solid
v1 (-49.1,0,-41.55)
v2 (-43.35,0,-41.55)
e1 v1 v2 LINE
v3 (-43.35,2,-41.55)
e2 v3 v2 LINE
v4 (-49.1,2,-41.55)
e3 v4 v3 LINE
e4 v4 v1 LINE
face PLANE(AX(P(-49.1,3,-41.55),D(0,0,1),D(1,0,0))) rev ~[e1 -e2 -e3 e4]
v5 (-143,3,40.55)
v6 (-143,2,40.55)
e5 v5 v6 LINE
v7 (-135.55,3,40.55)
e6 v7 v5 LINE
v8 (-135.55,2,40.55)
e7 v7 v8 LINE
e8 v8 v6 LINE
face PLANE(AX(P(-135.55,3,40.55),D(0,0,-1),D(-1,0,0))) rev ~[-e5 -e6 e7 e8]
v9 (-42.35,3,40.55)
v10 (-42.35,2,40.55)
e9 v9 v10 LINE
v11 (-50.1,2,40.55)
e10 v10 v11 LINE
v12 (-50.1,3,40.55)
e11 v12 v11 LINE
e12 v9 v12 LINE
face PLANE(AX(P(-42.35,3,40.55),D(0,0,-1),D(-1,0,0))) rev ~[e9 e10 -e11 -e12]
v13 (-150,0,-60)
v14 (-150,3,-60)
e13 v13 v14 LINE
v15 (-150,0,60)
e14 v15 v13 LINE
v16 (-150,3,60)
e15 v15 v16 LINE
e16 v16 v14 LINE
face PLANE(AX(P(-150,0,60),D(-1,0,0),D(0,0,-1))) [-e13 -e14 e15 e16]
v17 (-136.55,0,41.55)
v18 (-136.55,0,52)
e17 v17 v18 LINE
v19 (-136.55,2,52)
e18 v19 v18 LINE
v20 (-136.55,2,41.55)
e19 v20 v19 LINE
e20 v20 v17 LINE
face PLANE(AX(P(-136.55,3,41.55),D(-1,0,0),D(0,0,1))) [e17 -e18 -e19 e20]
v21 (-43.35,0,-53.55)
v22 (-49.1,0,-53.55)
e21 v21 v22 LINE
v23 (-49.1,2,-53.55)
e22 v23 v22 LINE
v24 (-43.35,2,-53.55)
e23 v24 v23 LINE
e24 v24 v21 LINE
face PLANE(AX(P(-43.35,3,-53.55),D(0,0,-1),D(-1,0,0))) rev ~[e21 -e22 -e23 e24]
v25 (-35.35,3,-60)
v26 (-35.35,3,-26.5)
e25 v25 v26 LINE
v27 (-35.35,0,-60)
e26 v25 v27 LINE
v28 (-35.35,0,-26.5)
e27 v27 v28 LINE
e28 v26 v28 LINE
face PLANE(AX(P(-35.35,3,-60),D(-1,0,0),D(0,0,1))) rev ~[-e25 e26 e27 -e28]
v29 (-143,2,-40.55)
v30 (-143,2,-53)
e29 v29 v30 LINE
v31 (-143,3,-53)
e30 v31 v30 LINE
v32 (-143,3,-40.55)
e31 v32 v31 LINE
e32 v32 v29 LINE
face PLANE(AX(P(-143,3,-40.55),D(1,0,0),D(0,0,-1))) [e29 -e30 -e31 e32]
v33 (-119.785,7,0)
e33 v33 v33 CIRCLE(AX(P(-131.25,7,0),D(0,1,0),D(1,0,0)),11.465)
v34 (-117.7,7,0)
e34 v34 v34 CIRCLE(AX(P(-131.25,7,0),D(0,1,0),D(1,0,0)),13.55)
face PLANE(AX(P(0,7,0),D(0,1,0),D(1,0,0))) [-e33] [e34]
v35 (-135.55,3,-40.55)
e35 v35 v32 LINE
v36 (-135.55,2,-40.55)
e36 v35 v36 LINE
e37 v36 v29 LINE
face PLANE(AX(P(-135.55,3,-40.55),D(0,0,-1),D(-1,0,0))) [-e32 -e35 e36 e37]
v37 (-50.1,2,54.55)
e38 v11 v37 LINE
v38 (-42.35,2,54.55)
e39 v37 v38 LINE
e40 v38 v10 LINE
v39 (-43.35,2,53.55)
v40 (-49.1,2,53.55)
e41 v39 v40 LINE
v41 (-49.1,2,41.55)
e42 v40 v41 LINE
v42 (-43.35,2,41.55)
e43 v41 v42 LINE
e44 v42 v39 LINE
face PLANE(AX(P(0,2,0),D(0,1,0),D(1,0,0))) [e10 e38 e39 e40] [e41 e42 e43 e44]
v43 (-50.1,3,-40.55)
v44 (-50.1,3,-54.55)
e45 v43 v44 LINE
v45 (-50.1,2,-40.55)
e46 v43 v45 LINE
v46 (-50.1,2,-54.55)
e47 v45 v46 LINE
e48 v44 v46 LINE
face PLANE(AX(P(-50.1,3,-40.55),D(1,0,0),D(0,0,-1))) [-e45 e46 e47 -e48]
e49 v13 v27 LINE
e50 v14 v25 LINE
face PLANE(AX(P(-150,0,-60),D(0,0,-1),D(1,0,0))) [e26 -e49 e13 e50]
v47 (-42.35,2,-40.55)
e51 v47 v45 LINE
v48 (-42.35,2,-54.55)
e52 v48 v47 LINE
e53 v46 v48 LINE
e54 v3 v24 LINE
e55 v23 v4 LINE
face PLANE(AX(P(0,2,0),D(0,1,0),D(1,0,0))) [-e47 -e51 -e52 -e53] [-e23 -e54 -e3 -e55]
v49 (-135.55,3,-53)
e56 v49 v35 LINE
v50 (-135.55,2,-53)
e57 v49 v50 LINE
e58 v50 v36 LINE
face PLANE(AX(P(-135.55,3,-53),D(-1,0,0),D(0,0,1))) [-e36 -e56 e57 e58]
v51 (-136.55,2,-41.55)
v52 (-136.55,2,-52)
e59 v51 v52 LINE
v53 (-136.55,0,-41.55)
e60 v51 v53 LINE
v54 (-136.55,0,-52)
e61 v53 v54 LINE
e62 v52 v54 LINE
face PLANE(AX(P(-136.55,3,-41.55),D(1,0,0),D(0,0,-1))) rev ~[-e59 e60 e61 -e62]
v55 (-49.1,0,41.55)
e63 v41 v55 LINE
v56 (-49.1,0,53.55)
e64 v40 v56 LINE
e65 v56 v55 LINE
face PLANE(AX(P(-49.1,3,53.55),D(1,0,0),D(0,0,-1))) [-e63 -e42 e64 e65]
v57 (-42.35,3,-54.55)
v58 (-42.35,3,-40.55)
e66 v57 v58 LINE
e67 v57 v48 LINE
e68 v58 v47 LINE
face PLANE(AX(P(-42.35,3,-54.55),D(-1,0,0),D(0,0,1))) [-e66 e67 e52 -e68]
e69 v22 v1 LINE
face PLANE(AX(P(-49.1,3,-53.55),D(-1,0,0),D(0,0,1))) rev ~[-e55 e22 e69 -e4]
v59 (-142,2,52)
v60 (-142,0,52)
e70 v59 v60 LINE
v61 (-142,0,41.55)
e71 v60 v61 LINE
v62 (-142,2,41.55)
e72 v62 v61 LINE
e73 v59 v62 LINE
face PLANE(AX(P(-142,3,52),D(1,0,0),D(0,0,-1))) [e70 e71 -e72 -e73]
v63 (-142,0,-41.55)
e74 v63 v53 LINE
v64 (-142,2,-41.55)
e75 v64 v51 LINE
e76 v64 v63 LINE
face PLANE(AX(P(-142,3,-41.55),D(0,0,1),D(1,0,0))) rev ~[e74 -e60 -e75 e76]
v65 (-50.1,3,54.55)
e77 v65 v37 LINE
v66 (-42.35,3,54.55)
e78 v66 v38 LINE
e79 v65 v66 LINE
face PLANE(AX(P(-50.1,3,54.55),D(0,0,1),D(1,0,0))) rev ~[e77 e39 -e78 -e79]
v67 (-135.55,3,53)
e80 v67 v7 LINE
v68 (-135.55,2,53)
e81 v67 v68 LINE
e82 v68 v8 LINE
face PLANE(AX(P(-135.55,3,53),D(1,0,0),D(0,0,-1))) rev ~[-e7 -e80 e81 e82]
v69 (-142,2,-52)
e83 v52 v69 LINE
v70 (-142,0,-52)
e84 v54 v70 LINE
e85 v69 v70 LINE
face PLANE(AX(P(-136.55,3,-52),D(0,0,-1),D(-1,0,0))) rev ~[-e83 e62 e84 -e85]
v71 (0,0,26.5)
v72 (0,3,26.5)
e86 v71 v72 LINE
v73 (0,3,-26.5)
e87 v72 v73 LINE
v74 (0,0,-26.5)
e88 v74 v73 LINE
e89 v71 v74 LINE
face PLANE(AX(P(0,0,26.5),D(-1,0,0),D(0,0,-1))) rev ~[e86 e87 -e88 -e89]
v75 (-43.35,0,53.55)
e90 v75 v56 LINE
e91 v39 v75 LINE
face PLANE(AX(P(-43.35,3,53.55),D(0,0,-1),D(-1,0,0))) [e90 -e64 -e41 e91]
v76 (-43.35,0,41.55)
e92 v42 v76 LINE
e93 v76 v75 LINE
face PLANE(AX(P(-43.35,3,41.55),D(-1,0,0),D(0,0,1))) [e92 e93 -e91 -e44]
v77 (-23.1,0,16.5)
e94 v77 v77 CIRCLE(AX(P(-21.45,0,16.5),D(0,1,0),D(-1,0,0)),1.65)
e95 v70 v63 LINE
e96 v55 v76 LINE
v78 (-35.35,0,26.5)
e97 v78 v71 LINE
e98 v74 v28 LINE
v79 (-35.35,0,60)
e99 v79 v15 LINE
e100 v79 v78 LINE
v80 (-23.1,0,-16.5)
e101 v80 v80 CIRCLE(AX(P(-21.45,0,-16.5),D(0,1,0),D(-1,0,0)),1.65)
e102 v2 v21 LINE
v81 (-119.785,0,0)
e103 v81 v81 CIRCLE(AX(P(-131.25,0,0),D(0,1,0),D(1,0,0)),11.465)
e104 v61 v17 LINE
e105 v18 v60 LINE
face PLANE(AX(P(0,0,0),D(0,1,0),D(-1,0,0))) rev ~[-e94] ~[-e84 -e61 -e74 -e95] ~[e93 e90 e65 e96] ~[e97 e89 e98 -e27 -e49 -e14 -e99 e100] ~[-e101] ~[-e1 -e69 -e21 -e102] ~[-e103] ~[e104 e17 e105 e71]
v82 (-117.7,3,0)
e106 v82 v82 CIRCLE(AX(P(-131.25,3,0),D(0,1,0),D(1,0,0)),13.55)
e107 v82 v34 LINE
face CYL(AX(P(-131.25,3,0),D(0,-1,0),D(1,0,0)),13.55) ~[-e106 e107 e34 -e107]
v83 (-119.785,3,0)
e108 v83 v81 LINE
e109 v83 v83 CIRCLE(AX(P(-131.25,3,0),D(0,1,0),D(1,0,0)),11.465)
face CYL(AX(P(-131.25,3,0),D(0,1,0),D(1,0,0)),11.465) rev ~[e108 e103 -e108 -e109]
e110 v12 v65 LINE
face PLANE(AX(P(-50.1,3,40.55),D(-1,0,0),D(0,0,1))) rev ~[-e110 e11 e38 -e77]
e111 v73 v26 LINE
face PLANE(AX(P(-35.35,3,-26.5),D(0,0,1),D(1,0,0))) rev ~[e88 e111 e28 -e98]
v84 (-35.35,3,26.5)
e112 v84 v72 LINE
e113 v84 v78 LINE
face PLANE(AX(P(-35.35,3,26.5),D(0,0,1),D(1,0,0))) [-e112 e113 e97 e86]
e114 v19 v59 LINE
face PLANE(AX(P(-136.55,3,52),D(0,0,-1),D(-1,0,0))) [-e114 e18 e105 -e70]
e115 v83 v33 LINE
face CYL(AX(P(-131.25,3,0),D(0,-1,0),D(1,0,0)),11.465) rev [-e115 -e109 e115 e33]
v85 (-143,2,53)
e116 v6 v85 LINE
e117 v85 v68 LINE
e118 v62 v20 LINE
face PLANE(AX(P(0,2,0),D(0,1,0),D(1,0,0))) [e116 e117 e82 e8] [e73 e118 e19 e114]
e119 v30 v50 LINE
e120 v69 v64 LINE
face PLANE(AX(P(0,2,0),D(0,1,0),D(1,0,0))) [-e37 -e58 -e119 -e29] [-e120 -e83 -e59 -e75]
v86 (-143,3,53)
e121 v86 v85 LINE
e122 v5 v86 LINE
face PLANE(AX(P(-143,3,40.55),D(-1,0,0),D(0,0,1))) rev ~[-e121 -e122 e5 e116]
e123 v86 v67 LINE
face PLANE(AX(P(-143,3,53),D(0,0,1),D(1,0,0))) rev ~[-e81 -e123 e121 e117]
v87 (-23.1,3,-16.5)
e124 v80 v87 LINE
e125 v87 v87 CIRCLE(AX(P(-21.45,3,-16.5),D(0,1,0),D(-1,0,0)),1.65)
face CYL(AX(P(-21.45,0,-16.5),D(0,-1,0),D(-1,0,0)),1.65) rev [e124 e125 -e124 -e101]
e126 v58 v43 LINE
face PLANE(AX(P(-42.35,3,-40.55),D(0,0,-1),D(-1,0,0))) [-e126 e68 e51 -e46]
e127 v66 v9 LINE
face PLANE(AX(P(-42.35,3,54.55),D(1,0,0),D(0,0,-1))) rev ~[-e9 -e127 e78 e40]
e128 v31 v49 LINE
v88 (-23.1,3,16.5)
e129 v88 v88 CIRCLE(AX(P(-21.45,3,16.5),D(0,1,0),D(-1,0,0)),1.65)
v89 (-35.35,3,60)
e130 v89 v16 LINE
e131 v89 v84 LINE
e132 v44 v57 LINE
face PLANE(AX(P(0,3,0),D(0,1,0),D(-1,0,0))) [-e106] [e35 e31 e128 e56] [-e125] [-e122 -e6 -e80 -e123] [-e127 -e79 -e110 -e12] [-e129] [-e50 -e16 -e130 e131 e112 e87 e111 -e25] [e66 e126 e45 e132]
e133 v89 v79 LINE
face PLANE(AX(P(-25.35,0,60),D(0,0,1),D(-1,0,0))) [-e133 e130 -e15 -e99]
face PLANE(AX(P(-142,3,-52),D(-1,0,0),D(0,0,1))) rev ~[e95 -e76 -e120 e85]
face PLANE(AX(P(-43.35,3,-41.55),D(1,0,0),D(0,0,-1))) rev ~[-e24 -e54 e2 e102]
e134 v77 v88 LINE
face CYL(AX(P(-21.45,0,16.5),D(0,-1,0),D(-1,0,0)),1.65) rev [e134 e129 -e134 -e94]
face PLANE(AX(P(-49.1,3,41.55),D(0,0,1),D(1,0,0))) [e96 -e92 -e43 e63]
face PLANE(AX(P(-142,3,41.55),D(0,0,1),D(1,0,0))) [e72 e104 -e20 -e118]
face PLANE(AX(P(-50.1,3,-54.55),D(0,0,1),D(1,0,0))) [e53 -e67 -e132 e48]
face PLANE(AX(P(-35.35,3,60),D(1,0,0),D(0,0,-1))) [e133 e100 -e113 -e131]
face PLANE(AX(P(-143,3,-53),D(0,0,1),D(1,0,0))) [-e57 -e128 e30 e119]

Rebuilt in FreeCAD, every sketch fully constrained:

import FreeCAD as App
import Part
import Sketcher
from FreeCAD import Vector
Q = App.Units.Quantity

doc = App.newDocument("Part")
body = doc.addObject("PartDesign::Body", "Body")

sketch1 = doc.addObject("Sketcher::SketchObject", "Sketch")
body.addObject(sketch1)
sketch1.AttachmentSupport = (doc.XZ_Plane, [""])
sketch1.MapMode = "FlatFace"
sketch1.addGeometry(Part.LineSegment(Vector(-25.4, 60, 0), Vector(-25.4, 26.5, 0)), False)
sketch1.addGeometry(Part.LineSegment(Vector(-25.4, 26.5, 0), Vector(0, 26.5, 0)), False)
sketch1.addGeometry(Part.LineSegment(Vector(0, 26.5, 0), Vector(0, -26.5, 0)), False)
sketch1.addGeometry(Part.LineSegment(Vector(0, -26.5, 0), Vector(-25.4, -26.5, 0)), False)
sketch1.addGeometry(Part.LineSegment(Vector(-25.4, -26.5, 0), Vector(-25.4, -60, 0)), False)
sketch1.addGeometry(Part.LineSegment(Vector(-25.4, -60, 0), Vector(-150, -60, 0)), False)
sketch1.addGeometry(Part.LineSegment(Vector(-150, -60, 0), Vector(-150, 60, 0)), False)
sketch1.addGeometry(Part.LineSegment(Vector(-150, 60, 0), Vector(-25.4, 60, 0)), False)
sketch1.addGeometry(Part.Circle(Vector(-21.4, -16.5, 0), Vector(0, 0, 1), 1.6), False)
sketch1.addGeometry(Part.Circle(Vector(-21.4, 16.5, 0), Vector(0, 0, 1), 1.6), False)
sketch1.addConstraint(Sketcher.Constraint("Coincident", 0, 2, 1, 1))
sketch1.addConstraint(Sketcher.Constraint("Coincident", 1, 2, 2, 1))
sketch1.addConstraint(Sketcher.Constraint("Coincident", 2, 2, 3, 1))
sketch1.addConstraint(Sketcher.Constraint("Coincident", 3, 2, 4, 1))
sketch1.addConstraint(Sketcher.Constraint("Coincident", 4, 2, 5, 1))
sketch1.addConstraint(Sketcher.Constraint("Coincident", 5, 2, 6, 1))
sketch1.addConstraint(Sketcher.Constraint("Coincident", 6, 2, 7, 1))
sketch1.addConstraint(Sketcher.Constraint("Coincident", 7, 2, 0, 1))
sketch1.addConstraint(Sketcher.Constraint("Vertical", 0))
sketch1.addConstraint(Sketcher.Constraint("Horizontal", 1))
sketch1.addConstraint(Sketcher.Constraint("Vertical", 2))
sketch1.addConstraint(Sketcher.Constraint("Horizontal", 3))
sketch1.addConstraint(Sketcher.Constraint("Vertical", 4))
sketch1.addConstraint(Sketcher.Constraint("Horizontal", 5))
sketch1.addConstraint(Sketcher.Constraint("Vertical", 6))
sketch1.addConstraint(Sketcher.Constraint("Horizontal", 7))
sketch1.addConstraint(Sketcher.Constraint("Equal", 8, 9))
sketch1.addConstraint(Sketcher.Constraint("Symmetric", 1, 2, 2, 2, -1, 1))
sketch1.addConstraint(Sketcher.Constraint("Symmetric", 8, 3, 9, 3, -1))
sketch1.addConstraint(Sketcher.Constraint("Symmetric", 4, 2, 7, 2, -1))
sketch1.addConstraint(Sketcher.Constraint("Diameter", 8, Q("3.3 mm")))
sketch1.addConstraint(Sketcher.Constraint("DistanceY", 2, 2, 2, 1, Q("53 mm")))
sketch1.addConstraint(Sketcher.Constraint("DistanceY", 6, 1, 6, 2, Q("120 mm")))
sketch1.addConstraint(Sketcher.Constraint("DistanceX", 1, 1, 1, 2, Q("25.35 mm")))
sketch1.addConstraint(Sketcher.Constraint("DistanceX", 5, 2, 5, 1, Q("124.65 mm")))
sketch1.addConstraint(Sketcher.Constraint("DistanceY", 8, 3, -1, 1, Q("16.5 mm")))
sketch1.addConstraint(Sketcher.Constraint("DistanceX", 0, 2, 9, 3, Q("3.9 mm")))
pad1 = doc.addObject("PartDesign::Pad", "Pad")
body.addObject(pad1)
pad1.Profile = sketch1
pad1.Length = 3
pad1.Reversed = True

sketch2 = doc.addObject("Sketcher::SketchObject", "Sketch001")
body.addObject(sketch2)
sketch2.AttachmentSupport = (doc.XZ_Plane, [""])
sketch2.MapMode = "FlatFace"
sketch2.AttachmentOffset = App.Placement(Vector(0, 0, -3), App.Rotation())
sketch2.addGeometry(Part.Circle(Vector(-131, 0, 0), Vector(0, 0, 1), 11), False)
sketch2.addConstraint(Sketcher.Constraint("PointOnObject", 0, 3, -1))
sketch2.addConstraint(Sketcher.Constraint("Diameter", 0, Q("22.93 mm")))
sketch2.addConstraint(Sketcher.Constraint("DistanceX", 0, 3, -1, 1, Q("131.25 mm")))
pocket1 = doc.addObject("PartDesign::Pocket", "Pocket")
body.addObject(pocket1)
pocket1.Profile = sketch2
pocket1.Type = "ThroughAll"
pocket1.Reversed = True

sketch3 = doc.addObject("Sketcher::SketchObject", "Sketch002")
body.addObject(sketch3)
sketch3.AttachmentSupport = (doc.XZ_Plane, [""])
sketch3.MapMode = "FlatFace"
sketch3.AttachmentOffset = App.Placement(Vector(0, 0, -3), App.Rotation())
sketch3.addGeometry(Part.Circle(Vector(-131, 0, 0), Vector(0, 0, 1), 14), False)
sketch3.addGeometry(Part.Circle(Vector(-131, 0, 0), Vector(0, 0, 1), 11), False)
sketch3.addConstraint(Sketcher.Constraint("Coincident", 1, 3, 0, 3))
sketch3.addConstraint(Sketcher.Constraint("PointOnObject", 0, 3, -1))
sketch3.addConstraint(Sketcher.Constraint("Diameter", 0, Q("27.1 mm")))
sketch3.addConstraint(Sketcher.Constraint("Diameter", 1, Q("22.93 mm")))
sketch3.addConstraint(Sketcher.Constraint("DistanceX", 0, 3, -1, 1, Q("131.25 mm")))
pad2 = doc.addObject("PartDesign::Pad", "Pad001")
body.addObject(pad2)
pad2.Profile = sketch3
pad2.Length = 4
pad2.Reversed = True

sketch4 = doc.addObject("Sketcher::SketchObject", "Sketch003")
body.addObject(sketch4)
sketch4.AttachmentSupport = (doc.XZ_Plane, [""])
sketch4.MapMode = "FlatFace"
sketch4.AttachmentOffset = App.Placement(Vector(0, 0, -3), App.Rotation())
sketch4.addGeometry(Part.LineSegment(Vector(-35, -26, 0), Vector(-25, -26, 0)), False)
sketch4.addGeometry(Part.LineSegment(Vector(-25, -26, 0), Vector(-25, -60, 0)), False)
sketch4.addGeometry(Part.LineSegment(Vector(-25, -60, 0), Vector(-35, -60, 0)), False)
sketch4.addGeometry(Part.LineSegment(Vector(-35, -60, 0), Vector(-35, -26, 0)), False)
sketch4.addGeometry(Part.LineSegment(Vector(-35, 60, 0), Vector(-25, 60, 0)), False)
sketch4.addGeometry(Part.LineSegment(Vector(-25, 60, 0), Vector(-25, 26, 0)), False)
sketch4.addGeometry(Part.LineSegment(Vector(-25, 26, 0), Vector(-35, 26, 0)), False)
sketch4.addGeometry(Part.LineSegment(Vector(-35, 26, 0), Vector(-35, 60, 0)), False)
sketch4.addConstraint(Sketcher.Constraint("Coincident", 0, 2, 1, 1))
sketch4.addConstraint(Sketcher.Constraint("Coincident", 1, 2, 2, 1))
sketch4.addConstraint(Sketcher.Constraint("Coincident", 2, 2, 3, 1))
sketch4.addConstraint(Sketcher.Constraint("Coincident", 3, 2, 0, 1))
sketch4.addConstraint(Sketcher.Constraint("Coincident", 4, 2, 5, 1))
sketch4.addConstraint(Sketcher.Constraint("Coincident", 5, 2, 6, 1))
sketch4.addConstraint(Sketcher.Constraint("Coincident", 6, 2, 7, 1))
sketch4.addConstraint(Sketcher.Constraint("Coincident", 7, 2, 4, 1))
sketch4.addConstraint(Sketcher.Constraint("Horizontal", 0))
sketch4.addConstraint(Sketcher.Constraint("Vertical", 1))
sketch4.addConstraint(Sketcher.Constraint("Horizontal", 2))
sketch4.addConstraint(Sketcher.Constraint("Vertical", 3))
sketch4.addConstraint(Sketcher.Constraint("Horizontal", 4))
sketch4.addConstraint(Sketcher.Constraint("Vertical", 5))
sketch4.addConstraint(Sketcher.Constraint("Horizontal", 6))
sketch4.addConstraint(Sketcher.Constraint("Vertical", 7))
sketch4.addConstraint(Sketcher.Constraint("Symmetric", 1, 2, 4, 2, -1))
sketch4.addConstraint(Sketcher.Constraint("Symmetric", 3, 2, 6, 2, -1))
sketch4.addConstraint(Sketcher.Constraint("DistanceX", 0, 1, 0, 2, Q("10 mm")))
sketch4.addConstraint(Sketcher.Constraint("DistanceY", 1, 2, 1, 1, Q("33.5 mm")))
sketch4.addConstraint(Sketcher.Constraint("DistanceY", 1, 2, -1, 1, Q("60 mm")))
sketch4.addConstraint(Sketcher.Constraint("DistanceX", 0, 2, -1, 1, Q("25.35 mm")))
pocket2 = doc.addObject("PartDesign::Pocket", "Pocket001")
body.addObject(pocket2)
pocket2.Profile = sketch4
pocket2.Type = "ThroughAll"
pocket2.Reversed = True

sketch5 = doc.addObject("Sketcher::SketchObject", "Sketch004")
body.addObject(sketch5)
sketch5.AttachmentSupport = (doc.XZ_Plane, [""])
sketch5.MapMode = "FlatFace"
sketch5.AttachmentOffset = App.Placement(Vector(0, 0, -3), App.Rotation())
sketch5.addGeometry(Part.LineSegment(Vector(-136, -53, 0), Vector(-143, -53, 0)), False)
sketch5.addGeometry(Part.LineSegment(Vector(-143, -53, 0), Vector(-143, -41, 0)), False)
sketch5.addGeometry(Part.LineSegment(Vector(-143, -41, 0), Vector(-136, -41, 0)), False)
sketch5.addGeometry(Part.LineSegment(Vector(-136, -41, 0), Vector(-136, -53, 0)), False)
sketch5.addGeometry(Part.LineSegment(Vector(-142, -52, 0), Vector(-137, -52, 0)), False)
sketch5.addGeometry(Part.LineSegment(Vector(-137, -52, 0), Vector(-137, -42, 0)), False)
sketch5.addGeometry(Part.LineSegment(Vector(-137, -42, 0), Vector(-142, -42, 0)), False)
sketch5.addGeometry(Part.LineSegment(Vector(-142, -42, 0), Vector(-142, -52, 0)), False)
sketch5.addGeometry(Part.LineSegment(Vector(-42, -55, 0), Vector(-50, -55, 0)), False)
sketch5.addGeometry(Part.LineSegment(Vector(-50, -55, 0), Vector(-50, -41, 0)), False)
sketch5.addGeometry(Part.LineSegment(Vector(-50, -41, 0), Vector(-42, -41, 0)), False)
sketch5.addGeometry(Part.LineSegment(Vector(-42, -41, 0), Vector(-42, -55, 0)), False)
sketch5.addGeometry(Part.LineSegment(Vector(-49, -54, 0), Vector(-43, -54, 0)), False)
sketch5.addGeometry(Part.LineSegment(Vector(-43, -54, 0), Vector(-43, -42, 0)), False)
sketch5.addGeometry(Part.LineSegment(Vector(-43, -42, 0), Vector(-49, -42, 0)), False)
sketch5.addGeometry(Part.LineSegment(Vector(-49, -42, 0), Vector(-49, -54, 0)), False)
sketch5.addGeometry(Part.LineSegment(Vector(-42, 41, 0), Vector(-50, 41, 0)), False)
sketch5.addGeometry(Part.LineSegment(Vector(-50, 41, 0), Vector(-50, 55, 0)), False)
sketch5.addGeometry(Part.LineSegment(Vector(-50, 55, 0), Vector(-42, 55, 0)), False)
sketch5.addGeometry(Part.LineSegment(Vector(-42, 55, 0), Vector(-42, 41, 0)), False)
sketch5.addGeometry(Part.LineSegment(Vector(-43, 42, 0), Vector(-43, 54, 0)), False)
sketch5.addGeometry(Part.LineSegment(Vector(-43, 54, 0), Vector(-49, 54, 0)), False)
sketch5.addGeometry(Part.LineSegment(Vector(-49, 54, 0), Vector(-49, 42, 0)), False)
sketch5.addGeometry(Part.LineSegment(Vector(-49, 42, 0), Vector(-43, 42, 0)), False)
sketch5.addGeometry(Part.LineSegment(Vector(-143, 53, 0), Vector(-136, 53, 0)), False)
sketch5.addGeometry(Part.LineSegment(Vector(-136, 53, 0), Vector(-136, 41, 0)), False)
sketch5.addGeometry(Part.LineSegment(Vector(-136, 41, 0), Vector(-143, 41, 0)), False)
sketch5.addGeometry(Part.LineSegment(Vector(-143, 41, 0), Vector(-143, 53, 0)), False)
sketch5.addGeometry(Part.LineSegment(Vector(-142, 42, 0), Vector(-137, 42, 0)), False)
sketch5.addGeometry(Part.LineSegment(Vector(-137, 42, 0), Vector(-137, 52, 0)), False)
sketch5.addGeometry(Part.LineSegment(Vector(-137, 52, 0), Vector(-142, 52, 0)), False)
sketch5.addGeometry(Part.LineSegment(Vector(-142, 52, 0), Vector(-142, 42, 0)), False)
sketch5.addConstraint(Sketcher.Constraint("Coincident", 0, 2, 1, 1))
sketch5.addConstraint(Sketcher.Constraint("Coincident", 1, 2, 2, 1))
sketch5.addConstraint(Sketcher.Constraint("Coincident", 2, 2, 3, 1))
sketch5.addConstraint(Sketcher.Constraint("Coincident", 3, 2, 0, 1))
sketch5.addConstraint(Sketcher.Constraint("Coincident", 4, 2, 5, 1))
sketch5.addConstraint(Sketcher.Constraint("Coincident", 5, 2, 6, 1))
sketch5.addConstraint(Sketcher.Constraint("Coincident", 6, 2, 7, 1))
sketch5.addConstraint(Sketcher.Constraint("Coincident", 7, 2, 4, 1))
sketch5.addConstraint(Sketcher.Constraint("Coincident", 8, 2, 9, 1))
sketch5.addConstraint(Sketcher.Constraint("Coincident", 9, 2, 10, 1))
sketch5.addConstraint(Sketcher.Constraint("Coincident", 10, 2, 11, 1))
sketch5.addConstraint(Sketcher.Constraint("Coincident", 11, 2, 8, 1))
sketch5.addConstraint(Sketcher.Constraint("Coincident", 12, 2, 13, 1))
sketch5.addConstraint(Sketcher.Constraint("Coincident", 13, 2, 14, 1))
sketch5.addConstraint(Sketcher.Constraint("Coincident", 14, 2, 15, 1))
sketch5.addConstraint(Sketcher.Constraint("Coincident", 15, 2, 12, 1))
sketch5.addConstraint(Sketcher.Constraint("Coincident", 16, 2, 17, 1))
sketch5.addConstraint(Sketcher.Constraint("Coincident", 17, 2, 18, 1))
sketch5.addConstraint(Sketcher.Constraint("Coincident", 18, 2, 19, 1))
sketch5.addConstraint(Sketcher.Constraint("Coincident", 19, 2, 16, 1))
sketch5.addConstraint(Sketcher.Constraint("Coincident", 20, 2, 21, 1))
sketch5.addConstraint(Sketcher.Constraint("Coincident", 21, 2, 22, 1))
sketch5.addConstraint(Sketcher.Constraint("Coincident", 22, 2, 23, 1))
sketch5.addConstraint(Sketcher.Constraint("Coincident", 23, 2, 20, 1))
sketch5.addConstraint(Sketcher.Constraint("Coincident", 24, 2, 25, 1))
sketch5.addConstraint(Sketcher.Constraint("Coincident", 25, 2, 26, 1))
sketch5.addConstraint(Sketcher.Constraint("Coincident", 26, 2, 27, 1))
sketch5.addConstraint(Sketcher.Constraint("Coincident", 27, 2, 24, 1))
sketch5.addConstraint(Sketcher.Constraint("Coincident", 28, 2, 29, 1))
sketch5.addConstraint(Sketcher.Constraint("Coincident", 29, 2, 30, 1))
sketch5.addConstraint(Sketcher.Constraint("Coincident", 30, 2, 31, 1))
sketch5.addConstraint(Sketcher.Constraint("Coincident", 31, 2, 28, 1))
sketch5.addConstraint(Sketcher.Constraint("Horizontal", 0))
sketch5.addConstraint(Sketcher.Constraint("Vertical", 1))
sketch5.addConstraint(Sketcher.Constraint("Horizontal", 2))
sketch5.addConstraint(Sketcher.Constraint("Vertical", 3))
sketch5.addConstraint(Sketcher.Constraint("Horizontal", 4))
sketch5.addConstraint(Sketcher.Constraint("Vertical", 5))
sketch5.addConstraint(Sketcher.Constraint("Horizontal", 6))
sketch5.addConstraint(Sketcher.Constraint("Vertical", 7))
sketch5.addConstraint(Sketcher.Constraint("Horizontal", 8))
sketch5.addConstraint(Sketcher.Constraint("Vertical", 9))
sketch5.addConstraint(Sketcher.Constraint("Horizontal", 10))
sketch5.addConstraint(Sketcher.Constraint("Vertical", 11))
sketch5.addConstraint(Sketcher.Constraint("Horizontal", 12))
sketch5.addConstraint(Sketcher.Constraint("Vertical", 13))
sketch5.addConstraint(Sketcher.Constraint("Horizontal", 14))
sketch5.addConstraint(Sketcher.Constraint("Vertical", 15))
sketch5.addConstraint(Sketcher.Constraint("Horizontal", 16))
sketch5.addConstraint(Sketcher.Constraint("Vertical", 17))
sketch5.addConstraint(Sketcher.Constraint("Horizontal", 18))
sketch5.addConstraint(Sketcher.Constraint("Vertical", 19))
sketch5.addConstraint(Sketcher.Constraint("Vertical", 20))
sketch5.addConstraint(Sketcher.Constraint("Horizontal", 21))
sketch5.addConstraint(Sketcher.Constraint("Vertical", 22))
sketch5.addConstraint(Sketcher.Constraint("Horizontal", 23))
sketch5.addConstraint(Sketcher.Constraint("Horizontal", 24))
sketch5.addConstraint(Sketcher.Constraint("Vertical", 25))
sketch5.addConstraint(Sketcher.Constraint("Horizontal", 26))
sketch5.addConstraint(Sketcher.Constraint("Vertical", 27))
sketch5.addConstraint(Sketcher.Constraint("Horizontal", 28))
sketch5.addConstraint(Sketcher.Constraint("Vertical", 29))
sketch5.addConstraint(Sketcher.Constraint("Horizontal", 30))
sketch5.addConstraint(Sketcher.Constraint("Vertical", 31))
sketch5.addConstraint(Sketcher.Constraint("Symmetric", 9, 2, 16, 2, -1))
sketch5.addConstraint(Sketcher.Constraint("Symmetric", 11, 2, 18, 2, -1))
sketch5.addConstraint(Sketcher.Constraint("Symmetric", 12, 2, 20, 2, -1))
sketch5.addConstraint(Sketcher.Constraint("Symmetric", 14, 2, 22, 2, -1))
sketch5.addConstraint(Sketcher.Constraint("Symmetric", 3, 2, 24, 2, -1))
sketch5.addConstraint(Sketcher.Constraint("Symmetric", 1, 2, 26, 2, -1))
sketch5.addConstraint(Sketcher.Constraint("Symmetric", 5, 2, 28, 2, -1))
sketch5.addConstraint(Sketcher.Constraint("Symmetric", 7, 2, 30, 2, -1))
sketch5.addConstraint(Sketcher.Constraint("Horizontal", 2, 2, 9, 2))
sketch5.addConstraint(Sketcher.Constraint("Horizontal", 6, 2, 13, 2))
sketch5.addConstraint(Sketcher.Constraint("DistanceY", 9, 1, 9, 2, Q("14 mm")))
sketch5.addConstraint(Sketcher.Constraint("DistanceX", 4, 2, 3, 2, Q("1 mm")))
sketch5.addConstraint(Sketcher.Constraint("DistanceY", 3, 2, 4, 2, Q("1 mm")))
sketch5.addConstraint(Sketcher.Constraint("DistanceY", 5, 2, 2, 2, Q("1 mm")))
sketch5.addConstraint(Sketcher.Constraint("DistanceX", 1, 2, 6, 2, Q("1 mm")))
sketch5.addConstraint(Sketcher.Constraint("DistanceX", 12, 2, 11, 2, Q("1 mm")))
sketch5.addConstraint(Sketcher.Constraint("DistanceY", 11, 2, 12, 2, Q("1 mm")))
sketch5.addConstraint(Sketcher.Constraint("DistanceX", 9, 2, 14, 2, Q("1 mm")))
sketch5.addConstraint(Sketcher.Constraint("DistanceX", 0, 2, 0, 1, Q("7.45 mm")))
sketch5.addConstraint(Sketcher.Constraint("DistanceX", 8, 2, 8, 1, Q("7.75 mm")))
sketch5.addConstraint(Sketcher.Constraint("DistanceY", 1, 1, 1, 2, Q("12.45 mm")))
sketch5.addConstraint(Sketcher.Constraint("DistanceX", 0, 2, -1, 1, Q("143 mm")))
sketch5.addConstraint(Sketcher.Constraint("DistanceY", 0, 2, -1, 1, Q("53 mm")))
sketch5.addConstraint(Sketcher.Constraint("DistanceX", 8, 2, -1, 1, Q("50.1 mm")))
pocket3 = doc.addObject("PartDesign::Pocket", "Pocket002")
body.addObject(pocket3)
pocket3.Profile = sketch5
pocket3.Length = 1
pocket3.Reversed = True

sketch6 = doc.addObject("Sketcher::SketchObject", "Sketch005")
body.addObject(sketch6)
sketch6.AttachmentSupport = (doc.XZ_Plane, [""])
sketch6.MapMode = "FlatFace"
sketch6.AttachmentOffset = App.Placement(Vector(0, 0, -3), App.Rotation())
sketch6.addGeometry(Part.LineSegment(Vector(-137, -42, 0), Vector(-137, -52, 0)), False)
sketch6.addGeometry(Part.LineSegment(Vector(-137, -52, 0), Vector(-142, -52, 0)), False)
sketch6.addGeometry(Part.LineSegment(Vector(-142, -52, 0), Vector(-142, -42, 0)), False)
sketch6.addGeometry(Part.LineSegment(Vector(-142, -42, 0), Vector(-137, -42, 0)), False)
sketch6.addGeometry(Part.LineSegment(Vector(-43, -42, 0), Vector(-43, -54, 0)), False)
sketch6.addGeometry(Part.LineSegment(Vector(-43, -54, 0), Vector(-49, -54, 0)), False)
sketch6.addGeometry(Part.LineSegment(Vector(-49, -54, 0), Vector(-49, -42, 0)), False)
sketch6.addGeometry(Part.LineSegment(Vector(-49, -42, 0), Vector(-43, -42, 0)), False)
sketch6.addGeometry(Part.LineSegment(Vector(-137, 52, 0), Vector(-137, 42, 0)), False)
sketch6.addGeometry(Part.LineSegment(Vector(-137, 42, 0), Vector(-142, 42, 0)), False)
sketch6.addGeometry(Part.LineSegment(Vector(-142, 42, 0), Vector(-142, 52, 0)), False)
sketch6.addGeometry(Part.LineSegment(Vector(-142, 52, 0), Vector(-137, 52, 0)), False)
sketch6.addGeometry(Part.LineSegment(Vector(-49, 54, 0), Vector(-43, 54, 0)), False)
sketch6.addGeometry(Part.LineSegment(Vector(-43, 54, 0), Vector(-43, 42, 0)), False)
sketch6.addGeometry(Part.LineSegment(Vector(-43, 42, 0), Vector(-49, 42, 0)), False)
sketch6.addGeometry(Part.LineSegment(Vector(-49, 42, 0), Vector(-49, 54, 0)), False)
sketch6.addConstraint(Sketcher.Constraint("Coincident", 0, 2, 1, 1))
sketch6.addConstraint(Sketcher.Constraint("Coincident", 1, 2, 2, 1))
sketch6.addConstraint(Sketcher.Constraint("Coincident", 2, 2, 3, 1))
sketch6.addConstraint(Sketcher.Constraint("Coincident", 3, 2, 0, 1))
sketch6.addConstraint(Sketcher.Constraint("Coincident", 4, 2, 5, 1))
sketch6.addConstraint(Sketcher.Constraint("Coincident", 5, 2, 6, 1))
sketch6.addConstraint(Sketcher.Constraint("Coincident", 6, 2, 7, 1))
sketch6.addConstraint(Sketcher.Constraint("Coincident", 7, 2, 4, 1))
sketch6.addConstraint(Sketcher.Constraint("Coincident", 8, 2, 9, 1))
sketch6.addConstraint(Sketcher.Constraint("Coincident", 9, 2, 10, 1))
sketch6.addConstraint(Sketcher.Constraint("Coincident", 10, 2, 11, 1))
sketch6.addConstraint(Sketcher.Constraint("Coincident", 11, 2, 8, 1))
sketch6.addConstraint(Sketcher.Constraint("Coincident", 12, 2, 13, 1))
sketch6.addConstraint(Sketcher.Constraint("Coincident", 13, 2, 14, 1))
sketch6.addConstraint(Sketcher.Constraint("Coincident", 14, 2, 15, 1))
sketch6.addConstraint(Sketcher.Constraint("Coincident", 15, 2, 12, 1))
sketch6.addConstraint(Sketcher.Constraint("Vertical", 0))
sketch6.addConstraint(Sketcher.Constraint("Horizontal", 1))
sketch6.addConstraint(Sketcher.Constraint("Vertical", 2))
sketch6.addConstraint(Sketcher.Constraint("Horizontal", 3))
sketch6.addConstraint(Sketcher.Constraint("Vertical", 4))
sketch6.addConstraint(Sketcher.Constraint("Horizontal", 5))
sketch6.addConstraint(Sketcher.Constraint("Vertical", 6))
sketch6.addConstraint(Sketcher.Constraint("Horizontal", 7))
sketch6.addConstraint(Sketcher.Constraint("Vertical", 8))
sketch6.addConstraint(Sketcher.Constraint("Horizontal", 9))
sketch6.addConstraint(Sketcher.Constraint("Vertical", 10))
sketch6.addConstraint(Sketcher.Constraint("Horizontal", 11))
sketch6.addConstraint(Sketcher.Constraint("Horizontal", 12))
sketch6.addConstraint(Sketcher.Constraint("Vertical", 13))
sketch6.addConstraint(Sketcher.Constraint("Horizontal", 14))
sketch6.addConstraint(Sketcher.Constraint("Vertical", 15))
sketch6.addConstraint(Sketcher.Constraint("Symmetric", 3, 2, 8, 2, -1))
sketch6.addConstraint(Sketcher.Constraint("Symmetric", 1, 2, 10, 2, -1))
sketch6.addConstraint(Sketcher.Constraint("Symmetric", 4, 2, 12, 2, -1))
sketch6.addConstraint(Sketcher.Constraint("Symmetric", 6, 2, 14, 2, -1))
sketch6.addConstraint(Sketcher.Constraint("Horizontal", 3, 2, 6, 2))
sketch6.addConstraint(Sketcher.Constraint("DistanceY", 4, 2, 4, 1, Q("12 mm")))
sketch6.addConstraint(Sketcher.Constraint("DistanceY", 0, 2, -1, 1, Q("52 mm")))
sketch6.addConstraint(Sketcher.Constraint("DistanceX", 1, 2, -1, 1, Q("142 mm")))
sketch6.addConstraint(Sketcher.Constraint("DistanceX", 1, 2, 1, 1, Q("5.45 mm")))
sketch6.addConstraint(Sketcher.Constraint("DistanceX", 5, 2, 5, 1, Q("5.75 mm")))
sketch6.addConstraint(Sketcher.Constraint("DistanceY", 0, 2, 0, 1, Q("10.45 mm")))
sketch6.addConstraint(Sketcher.Constraint("DistanceX", 5, 2, -1, 1, Q("49.1 mm")))
pocket4 = doc.addObject("PartDesign::Pocket", "Pocket003")
body.addObject(pocket4)
pocket4.Profile = sketch6
pocket4.Type = "ThroughAll"
pocket4.Reversed = True

doc.recompute()
